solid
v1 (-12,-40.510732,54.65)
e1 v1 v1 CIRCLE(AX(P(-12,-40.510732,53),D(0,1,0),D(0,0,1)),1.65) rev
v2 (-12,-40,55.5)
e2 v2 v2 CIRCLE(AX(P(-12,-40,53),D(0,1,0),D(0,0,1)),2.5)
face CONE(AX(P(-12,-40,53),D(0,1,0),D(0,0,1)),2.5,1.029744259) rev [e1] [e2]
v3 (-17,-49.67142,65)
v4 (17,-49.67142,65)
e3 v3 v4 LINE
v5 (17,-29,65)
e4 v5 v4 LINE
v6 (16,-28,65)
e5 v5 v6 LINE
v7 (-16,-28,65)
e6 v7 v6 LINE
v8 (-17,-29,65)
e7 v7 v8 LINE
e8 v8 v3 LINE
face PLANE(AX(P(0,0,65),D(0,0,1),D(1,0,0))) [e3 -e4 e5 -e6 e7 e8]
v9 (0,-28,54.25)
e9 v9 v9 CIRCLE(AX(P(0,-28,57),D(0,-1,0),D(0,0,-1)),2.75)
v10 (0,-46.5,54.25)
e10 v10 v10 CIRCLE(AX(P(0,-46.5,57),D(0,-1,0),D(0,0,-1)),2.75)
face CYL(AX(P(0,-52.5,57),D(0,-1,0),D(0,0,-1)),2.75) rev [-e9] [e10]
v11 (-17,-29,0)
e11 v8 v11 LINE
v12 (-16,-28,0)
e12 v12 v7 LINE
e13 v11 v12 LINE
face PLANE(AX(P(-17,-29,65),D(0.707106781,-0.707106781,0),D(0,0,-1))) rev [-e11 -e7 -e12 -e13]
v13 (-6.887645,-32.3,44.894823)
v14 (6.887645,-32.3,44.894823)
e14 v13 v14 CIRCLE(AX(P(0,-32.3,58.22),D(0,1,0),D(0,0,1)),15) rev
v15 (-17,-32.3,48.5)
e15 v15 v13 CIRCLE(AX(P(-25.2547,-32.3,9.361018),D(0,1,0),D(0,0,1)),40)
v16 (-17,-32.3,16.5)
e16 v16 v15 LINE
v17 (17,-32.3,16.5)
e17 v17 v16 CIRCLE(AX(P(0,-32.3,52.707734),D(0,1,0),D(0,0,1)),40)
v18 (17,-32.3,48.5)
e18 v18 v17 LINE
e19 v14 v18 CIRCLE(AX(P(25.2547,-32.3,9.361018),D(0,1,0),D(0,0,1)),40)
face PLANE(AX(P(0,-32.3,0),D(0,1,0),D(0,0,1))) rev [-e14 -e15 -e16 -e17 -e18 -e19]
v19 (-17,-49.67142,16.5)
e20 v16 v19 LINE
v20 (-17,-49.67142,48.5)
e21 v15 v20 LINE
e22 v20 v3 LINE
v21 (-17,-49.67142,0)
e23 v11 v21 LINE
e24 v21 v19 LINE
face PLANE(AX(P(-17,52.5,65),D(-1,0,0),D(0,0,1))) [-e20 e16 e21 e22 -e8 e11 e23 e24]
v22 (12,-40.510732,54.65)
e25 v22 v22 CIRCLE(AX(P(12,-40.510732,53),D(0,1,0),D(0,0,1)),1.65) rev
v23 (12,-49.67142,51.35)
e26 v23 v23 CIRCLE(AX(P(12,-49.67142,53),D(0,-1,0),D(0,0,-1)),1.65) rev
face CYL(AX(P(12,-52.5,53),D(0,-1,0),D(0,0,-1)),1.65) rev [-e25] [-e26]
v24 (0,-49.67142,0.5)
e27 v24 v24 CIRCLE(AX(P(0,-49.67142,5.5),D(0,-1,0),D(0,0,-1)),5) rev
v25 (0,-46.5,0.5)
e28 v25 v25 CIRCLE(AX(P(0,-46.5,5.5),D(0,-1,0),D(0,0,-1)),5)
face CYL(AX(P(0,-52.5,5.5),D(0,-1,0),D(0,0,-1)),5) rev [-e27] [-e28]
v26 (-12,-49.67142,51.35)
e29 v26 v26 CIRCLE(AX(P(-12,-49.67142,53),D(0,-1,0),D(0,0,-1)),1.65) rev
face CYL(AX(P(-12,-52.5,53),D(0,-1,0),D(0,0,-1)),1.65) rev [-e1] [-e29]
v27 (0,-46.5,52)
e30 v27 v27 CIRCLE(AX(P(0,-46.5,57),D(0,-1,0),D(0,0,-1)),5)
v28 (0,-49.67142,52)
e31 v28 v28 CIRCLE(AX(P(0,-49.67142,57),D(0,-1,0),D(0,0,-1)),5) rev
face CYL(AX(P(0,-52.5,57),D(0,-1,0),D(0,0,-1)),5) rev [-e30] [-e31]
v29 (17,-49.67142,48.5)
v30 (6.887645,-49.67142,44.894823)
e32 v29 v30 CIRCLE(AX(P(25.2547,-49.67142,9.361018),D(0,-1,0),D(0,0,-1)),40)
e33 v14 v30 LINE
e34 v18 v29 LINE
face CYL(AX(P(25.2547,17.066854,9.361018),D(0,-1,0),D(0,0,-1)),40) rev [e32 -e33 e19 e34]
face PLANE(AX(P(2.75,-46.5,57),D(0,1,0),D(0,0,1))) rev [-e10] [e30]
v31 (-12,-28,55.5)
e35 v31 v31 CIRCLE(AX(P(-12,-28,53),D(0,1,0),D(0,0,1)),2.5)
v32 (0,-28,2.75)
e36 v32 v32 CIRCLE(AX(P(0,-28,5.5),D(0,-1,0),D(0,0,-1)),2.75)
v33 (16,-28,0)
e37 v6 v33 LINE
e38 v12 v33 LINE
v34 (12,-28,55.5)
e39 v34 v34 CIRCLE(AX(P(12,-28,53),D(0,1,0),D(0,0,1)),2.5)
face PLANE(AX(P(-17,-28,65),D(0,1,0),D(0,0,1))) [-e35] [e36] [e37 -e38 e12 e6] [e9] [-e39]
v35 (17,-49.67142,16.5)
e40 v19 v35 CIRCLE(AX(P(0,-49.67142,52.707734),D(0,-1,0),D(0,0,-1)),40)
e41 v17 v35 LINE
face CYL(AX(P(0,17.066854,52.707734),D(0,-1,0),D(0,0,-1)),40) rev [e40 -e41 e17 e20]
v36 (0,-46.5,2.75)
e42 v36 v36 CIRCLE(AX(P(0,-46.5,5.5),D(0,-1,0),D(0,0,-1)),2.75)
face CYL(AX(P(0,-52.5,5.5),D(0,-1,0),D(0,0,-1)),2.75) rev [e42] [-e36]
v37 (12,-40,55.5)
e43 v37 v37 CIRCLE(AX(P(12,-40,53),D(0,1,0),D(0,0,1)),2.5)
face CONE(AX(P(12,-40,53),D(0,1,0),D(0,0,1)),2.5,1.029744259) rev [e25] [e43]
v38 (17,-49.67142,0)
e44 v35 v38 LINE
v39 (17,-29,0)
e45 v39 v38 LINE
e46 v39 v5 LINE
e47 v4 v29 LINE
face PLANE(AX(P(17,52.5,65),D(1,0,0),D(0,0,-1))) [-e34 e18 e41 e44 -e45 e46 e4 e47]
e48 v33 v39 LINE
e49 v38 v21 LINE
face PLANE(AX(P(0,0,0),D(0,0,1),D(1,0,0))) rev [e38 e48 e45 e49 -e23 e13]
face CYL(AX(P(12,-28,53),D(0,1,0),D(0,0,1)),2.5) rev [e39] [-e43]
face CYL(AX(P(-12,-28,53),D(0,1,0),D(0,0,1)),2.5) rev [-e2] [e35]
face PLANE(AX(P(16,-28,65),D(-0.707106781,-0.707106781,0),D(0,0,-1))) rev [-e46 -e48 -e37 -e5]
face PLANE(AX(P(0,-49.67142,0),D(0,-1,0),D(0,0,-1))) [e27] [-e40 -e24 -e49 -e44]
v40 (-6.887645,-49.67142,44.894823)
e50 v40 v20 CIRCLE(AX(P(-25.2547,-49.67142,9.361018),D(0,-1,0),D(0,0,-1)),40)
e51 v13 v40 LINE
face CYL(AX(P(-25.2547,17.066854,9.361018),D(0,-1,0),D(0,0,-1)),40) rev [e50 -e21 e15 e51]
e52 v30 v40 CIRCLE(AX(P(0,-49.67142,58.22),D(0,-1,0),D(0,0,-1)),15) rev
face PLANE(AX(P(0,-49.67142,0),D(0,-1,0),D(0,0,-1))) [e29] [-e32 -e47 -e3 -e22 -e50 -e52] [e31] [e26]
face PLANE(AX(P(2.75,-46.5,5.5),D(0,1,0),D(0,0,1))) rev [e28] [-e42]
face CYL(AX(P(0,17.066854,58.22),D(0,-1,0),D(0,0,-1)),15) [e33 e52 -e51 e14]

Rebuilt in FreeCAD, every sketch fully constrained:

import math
import FreeCAD as App
import Part
import Sketcher


def edges_at(feature, points):
    """Names of the edges that pass closest to the given points."""
    edges = feature.Shape.Edges
    near = lambda p: min(range(len(edges)), key=lambda i: edges[i].distToShape(Part.Vertex(*p))[0])
    return sorted({f"Edge{near(p) + 1}" for p in points})


def add_polygon(sketch, points):
    """Adds a closed chain of lines whose ends are joined by coincident constraints."""
    first, n = sketch.GeometryCount, len(points)
    for a, b in zip(points, points[1:] + points[:1]):
        sketch.addGeometry(Part.LineSegment(App.Vector(*a, 0), App.Vector(*b, 0)), False)
    for i in range(n):
        sketch.addConstraint(Sketcher.Constraint("Coincident", first + i, 2, first + (i + 1) % n, 1))

doc = App.newDocument("Part")
params = doc.addObject("Spreadsheet::Sheet", "Params")
for row, (alias, value) in enumerate([
    ("sketch1_diameter", "105 mm"),
    ("sketch1_diameter2", "35 mm"),
    ("pad1_length", "65 mm"),
    ("sketch2_height", "65 mm"),
    ("sketch2_width", "35.5 mm"),
    ("sketch3_width", "34 mm"),
    ("sketch3_height", "81 mm"),
    ("sketch4_diameter", "5 mm"),
    ("hole_diameter", "5 mm"),
    ("hole_depth", "12 mm"),
    ("sketch5_diameter", "3.3 mm"),
    ("hole2_diameter", "3.3 mm"),
    ("sketch6_diameter", "5.5 mm"),
    ("hole3_diameter", "5.5 mm"),
    ("hole3_cbore_diameter", "10 mm"),
    ("hole3_cbore_depth", "6 mm"),
    ("chamfer_size", "1 mm"),
    ("sketch7_radius", "40 mm"),
    ("sketch7_radius2", "15 mm"),
    ("sketch7_height", "32 mm"),
    ("pocket3_length", "20.2 mm"),
    ("sketch8_width", "34 mm"),
    ("sketch8_height", "65 mm"),
    ("pocket4_length", "2.82858 mm"),
], start=1):
    params.set(f"A{row}", alias)
    params.set(f"B{row}", "=" + value)
    params.setAlias(f"B{row}", alias)

body = doc.addObject("PartDesign::Body", "Body")
body.AllowCompound = True

sketch1 = body.newObject("Sketcher::SketchObject", "Sketch")
sketch1.AttachmentSupport = (doc.getObject("XY_Plane"), [""])
sketch1.MapMode = "FlatFace"
sketch1.addGeometry(Part.Circle(App.Vector(0, 0, 0), App.Vector(0, 0, 1), 52), False)
sketch1.addGeometry(Part.Circle(App.Vector(0, 0, 0), App.Vector(0, 0, 1), 18), False)
sketch1.addConstraint(Sketcher.Constraint("Coincident", 0, 3, -1, 1))
sketch1.addConstraint(Sketcher.Constraint("Coincident", 1, 3, -1, 1))
sketch1.addConstraint(Sketcher.Constraint("Diameter", 0, 105.0))
sketch1.addConstraint(Sketcher.Constraint("Diameter", 1, 35.0))
sketch1.setExpression("Constraints[2]", "Params.sketch1_diameter")
sketch1.setExpression("Constraints[3]", "Params.sketch1_diameter2")
pad1 = body.newObject("PartDesign::Pad", "Pad")
pad1.Profile = sketch1
pad1.setExpression("Length", "Params.pad1_length")

sketch2 = body.newObject("Sketcher::SketchObject", "Sketch001")
sketch2.AttachmentSupport = (doc.getObject("XZ_Plane"), [""])
sketch2.MapMode = "FlatFace"
sketch2.AttachmentOffset = App.Placement(App.Vector(0, 0, 52.5), App.Rotation())
add_polygon(sketch2, [(-52, 0), (-52, 65), (-17, 65), (-17, 0)])
add_polygon(sketch2, [(17, 0), (17, 65), (52, 65), (52, 0)])
sketch2.addConstraint(Sketcher.Constraint("Vertical", 0))
sketch2.addConstraint(Sketcher.Constraint("Horizontal", 1))
sketch2.addConstraint(Sketcher.Constraint("Vertical", 2))
sketch2.addConstraint(Sketcher.Constraint("Horizontal", 3))
sketch2.addConstraint(Sketcher.Constraint("Vertical", 4))
sketch2.addConstraint(Sketcher.Constraint("Horizontal", 5))
sketch2.addConstraint(Sketcher.Constraint("Vertical", 6))
sketch2.addConstraint(Sketcher.Constraint("Horizontal", 7))
sketch2.addConstraint(Sketcher.Constraint("Symmetric", 3, 2, 6, 2, -1, 1))
sketch2.addConstraint(Sketcher.Constraint("Symmetric", 1, 2, 4, 2, -2))
sketch2.addConstraint(Sketcher.Constraint("PointOnObject", 2, 2, -1))
sketch2.addConstraint(Sketcher.Constraint("DistanceY", 0, 1, 0, 2, 65.0))
sketch2.addConstraint(Sketcher.Constraint("DistanceX", 1, 1, 1, 2, 35.5))
sketch2.addConstraint(Sketcher.Constraint("DistanceX", 1, 2, -1, 1, 17.0))
sketch2.setExpression("Constraints[19]", "Params.sketch2_height")
sketch2.setExpression("Constraints[20]", "Params.sketch2_width")
pocket1 = body.newObject("PartDesign::Pocket", "Pocket")
pocket1.Profile = sketch2
pocket1.Type = "ThroughAll"

sketch3 = body.newObject("Sketcher::SketchObject", "Sketch002")
sketch3.AttachmentSupport = (doc.getObject("XY_Plane"), [""])
sketch3.MapMode = "FlatFace"
add_polygon(sketch3, [(-17, 53), (-17, -28), (17, -28), (17, 53)])
sketch3.addConstraint(Sketcher.Constraint("Vertical", 0))
sketch3.addConstraint(Sketcher.Constraint("Horizontal", 1))
sketch3.addConstraint(Sketcher.Constraint("Vertical", 2))
sketch3.addConstraint(Sketcher.Constraint("Horizontal", 3))
sketch3.addConstraint(Sketcher.Constraint("DistanceX", 1, 1, 1, 2, 34.0))
sketch3.addConstraint(Sketcher.Constraint("DistanceY", 0, 2, 0, 1, 81.0))
sketch3.addConstraint(Sketcher.Constraint("DistanceX", 0, 2, -1, 1, 17.0))
sketch3.addConstraint(Sketcher.Constraint("DistanceY", 0, 2, -1, 1, 28.0))
sketch3.setExpression("Constraints[8]", "Params.sketch3_width")
sketch3.setExpression("Constraints[9]", "Params.sketch3_height")
pocket2 = body.newObject("PartDesign::Pocket", "Pocket001")
pocket2.Profile = sketch3
pocket2.Type = "ThroughAll"
pocket2.Reversed = True

sketch4 = body.newObject("Sketcher::SketchObject", "Sketch003")
sketch4.AttachmentSupport = (doc.getObject("XZ_Plane"), [""])
sketch4.MapMode = "FlatFace"
sketch4.AttachmentOffset = App.Placement(App.Vector(0, 0, 28), App.Rotation())
sketch4.addGeometry(Part.Circle(App.Vector(12, 53, 0), App.Vector(0, 0, 1), 2.5), False)
sketch4.addGeometry(Part.Circle(App.Vector(-12, 53, 0), App.Vector(0, 0, 1), 2.5), False)
sketch4.addConstraint(Sketcher.Constraint("Equal", 0, 1))
sketch4.addConstraint(Sketcher.Constraint("Symmetric", 0, 3, 1, 3, -2))
sketch4.addConstraint(Sketcher.Constraint("Diameter", 0, 5.0))
sketch4.addConstraint(Sketcher.Constraint("DistanceX", -1, 1, 0, 3, 12.0))
sketch4.addConstraint(Sketcher.Constraint("DistanceY", -1, 1, 0, 3, 53.0))
sketch4.setExpression("Constraints[2]", "Params.sketch4_diameter")
doc.recompute()
hole = body.newObject("PartDesign::Hole", "Hole")
hole.Profile = sketch4
hole.ThreadType = "None"
hole.setExpression("Diameter", "Params.hole_diameter")
hole.DepthType = "Dimension"
hole.setExpression("Depth", "Params.hole_depth")
hole.DrillPoint = "Angled"
hole.DrillPointAngle = 118
hole.Reversed = True

sketch5 = body.newObject("Sketcher::SketchObject", "Sketch004")
sketch5.AttachmentSupport = (doc.getObject("XZ_Plane"), [""])
sketch5.MapMode = "FlatFace"
sketch5.AttachmentOffset = App.Placement(App.Vector(0, 0, 52.5), App.Rotation())
sketch5.addGeometry(Part.Circle(App.Vector(-12, 53, 0), App.Vector(0, 0, 1), 1.6), False)
sketch5.addGeometry(Part.Circle(App.Vector(12, 53, 0), App.Vector(0, 0, 1), 1.6), False)
sketch5.addConstraint(Sketcher.Constraint("Equal", 0, 1))
sketch5.addConstraint(Sketcher.Constraint("Symmetric", 0, 3, 1, 3, -2))
sketch5.addConstraint(Sketcher.Constraint("Diameter", 0, 3.3))
sketch5.addConstraint(Sketcher.Constraint("DistanceX", 0, 3, -1, 1, 12.0))
sketch5.addConstraint(Sketcher.Constraint("DistanceY", -1, 1, 0, 3, 53.0))
sketch5.setExpression("Constraints[2]", "Params.sketch5_diameter")
doc.recompute()
hole2 = body.newObject("PartDesign::Hole", "Hole001")
hole2.Profile = sketch5
hole2.ThreadType = "None"
hole2.setExpression("Diameter", "Params.hole2_diameter")
hole2.DepthType = "ThroughAll"

sketch6 = body.newObject("Sketcher::SketchObject", "Sketch005")
sketch6.AttachmentSupport = (doc.getObject("XZ_Plane"), [""])
sketch6.MapMode = "FlatFace"
sketch6.AttachmentOffset = App.Placement(App.Vector(0, 0, 52.5), App.Rotation())
sketch6.addGeometry(Part.Circle(App.Vector(0, 5.5, 0), App.Vector(0, 0, 1), 2.8), False)
sketch6.addGeometry(Part.Circle(App.Vector(0, 57, 0), App.Vector(0, 0, 1), 2.8), False)
sketch6.addConstraint(Sketcher.Constraint("Equal", 0, 1))
sketch6.addConstraint(Sketcher.Constraint("PointOnObject", 0, 3, -2))
sketch6.addConstraint(Sketcher.Constraint("PointOnObject", 1, 3, -2))
sketch6.addConstraint(Sketcher.Constraint("Diameter", 0, 5.5))
sketch6.addConstraint(Sketcher.Constraint("DistanceY", -1, 1, 1, 3, 57.0))
sketch6.addConstraint(Sketcher.Constraint("DistanceY", -1, 1, 0, 3, 5.5))
sketch6.setExpression("Constraints[3]", "Params.sketch6_diameter")
doc.recompute()
hole3 = body.newObject("PartDesign::Hole", "Hole002")
hole3.Profile = sketch6
hole3.ThreadType = "None"
hole3.setExpression("Diameter", "Params.hole3_diameter")
hole3.DepthType = "ThroughAll"
hole3.HoleCutType = "Counterbore"
hole3.setExpression("HoleCutDiameter", "Params.hole3_cbore_diameter")
hole3.setExpression("HoleCutDepth", "Params.hole3_cbore_depth")
doc.recompute()

chamfer = body.newObject("PartDesign::Chamfer", "Chamfer")
chamfer.Base = (hole3, edges_at(hole3, [(-17, -28, 32.5), (17, -28, 32.5)]))
chamfer.setExpression("Size", "Params.chamfer_size")

sketch7 = body.newObject("Sketcher::SketchObject", "Sketch006")
sketch7.AttachmentSupport = (doc.getObject("XZ_Plane"), [""])
sketch7.MapMode = "FlatFace"
sketch7.AttachmentOffset = App.Placement(App.Vector(0, 0, 52.5), App.Rotation())
sketch7.addGeometry(Part.LineSegment(App.Vector(17, 48, 0), App.Vector(17, 16, 0)), False)
sketch7.addGeometry(Part.ArcOfCircle(Part.Circle(App.Vector(0, 53, 0), App.Vector(0, 0, 1), 40), math.radians(-115), math.radians(-65)), False)
sketch7.addGeometry(Part.LineSegment(App.Vector(-17, 16, 0), App.Vector(-17, 48, 0)), False)
sketch7.addGeometry(Part.ArcOfCircle(Part.Circle(App.Vector(-25, 9, 0), App.Vector(0, 0, 1), 40), math.radians(62.67), math.radians(78.09)), False)
sketch7.addGeometry(Part.ArcOfCircle(Part.Circle(App.Vector(0, 58, 0), App.Vector(0, 0, 1), 15), math.radians(-117), math.radians(-63)), False)
sketch7.addGeometry(Part.ArcOfCircle(Part.Circle(App.Vector(25, 9, 0), App.Vector(0, 0, 1), 40), math.radians(101.91), math.radians(117.33)), False)
sketch7.addConstraint(Sketcher.Constraint("Coincident", 0, 2, 1, 2))
sketch7.addConstraint(Sketcher.Constraint("Coincident", 1, 1, 2, 1))
sketch7.addConstraint(Sketcher.Constraint("Coincident", 2, 2, 3, 2))
sketch7.addConstraint(Sketcher.Constraint("Tangent", 3, 1, 4, 1))
sketch7.addConstraint(Sketcher.Constraint("Tangent", 4, 2, 5, 2))
sketch7.addConstraint(Sketcher.Constraint("Coincident", 5, 1, 0, 1))
sketch7.addConstraint(Sketcher.Constraint("Vertical", 0))
sketch7.addConstraint(Sketcher.Constraint("Vertical", 2))
sketch7.addConstraint(Sketcher.Constraint("Equal", 1, 3))
sketch7.addConstraint(Sketcher.Constraint("Equal", 3, 5))
sketch7.addConstraint(Sketcher.Constraint("Symmetric", 3, 3, 5, 3, -2))
sketch7.addConstraint(Sketcher.Constraint("Symmetric", 0, 2, 1, 1, -2))
sketch7.addConstraint(Sketcher.Constraint("Radius", 1, 40.0))
sketch7.addConstraint(Sketcher.Constraint("Radius", 4, 15.0))
sketch7.addConstraint(Sketcher.Constraint("DistanceY", 0, 2, 0, 1, 32.0))
sketch7.addConstraint(Sketcher.Constraint("DistanceX", -1, 1, 0, 2, 17.0))
sketch7.addConstraint(Sketcher.Constraint("DistanceY", -1, 1, 0, 2, 16.5))
sketch7.addConstraint(Sketcher.Constraint("DistanceY", -1, 1, 4, 3, 58.22))
sketch7.setExpression("Constraints[12]", "Params.sketch7_radius")
sketch7.setExpression("Constraints[13]", "Params.sketch7_radius2")
sketch7.setExpression("Constraints[14]", "Params.sketch7_height")
pocket3 = body.newObject("PartDesign::Pocket", "Pocket002")
pocket3.Profile = sketch7
pocket3.setExpression("Length", "Params.pocket3_length")

sketch8 = body.newObject("Sketcher::SketchObject", "Sketch007")
sketch8.AttachmentSupport = (doc.getObject("XZ_Plane"), [""])
sketch8.MapMode = "FlatFace"
sketch8.AttachmentOffset = App.Placement(App.Vector(0, 0, 52.5), App.Rotation())
add_polygon(sketch8, [(-17, 0), (-17, 65), (17, 65), (17, 0)])
sketch8.addConstraint(Sketcher.Constraint("Vertical", 0))
sketch8.addConstraint(Sketcher.Constraint("Horizontal", 1))
sketch8.addConstraint(Sketcher.Constraint("Vertical", 2))
sketch8.addConstraint(Sketcher.Constraint("Horizontal", 3))
sketch8.addConstraint(Sketcher.Constraint("Symmetric", 2, 2, 3, 2, -1, 1))
sketch8.addConstraint(Sketcher.Constraint("DistanceX", 1, 1, 1, 2, 34.0))
sketch8.addConstraint(Sketcher.Constraint("DistanceY", 0, 1, 0, 2, 65.0))
sketch8.setExpression("Constraints[9]", "Params.sketch8_width")
sketch8.setExpression("Constraints[10]", "Params.sketch8_height")
pocket4 = body.newObject("PartDesign::Pocket", "Pocket003")
pocket4.Profile = sketch8
pocket4.setExpression("Length", "Params.pocket4_length")

doc.recompute()
